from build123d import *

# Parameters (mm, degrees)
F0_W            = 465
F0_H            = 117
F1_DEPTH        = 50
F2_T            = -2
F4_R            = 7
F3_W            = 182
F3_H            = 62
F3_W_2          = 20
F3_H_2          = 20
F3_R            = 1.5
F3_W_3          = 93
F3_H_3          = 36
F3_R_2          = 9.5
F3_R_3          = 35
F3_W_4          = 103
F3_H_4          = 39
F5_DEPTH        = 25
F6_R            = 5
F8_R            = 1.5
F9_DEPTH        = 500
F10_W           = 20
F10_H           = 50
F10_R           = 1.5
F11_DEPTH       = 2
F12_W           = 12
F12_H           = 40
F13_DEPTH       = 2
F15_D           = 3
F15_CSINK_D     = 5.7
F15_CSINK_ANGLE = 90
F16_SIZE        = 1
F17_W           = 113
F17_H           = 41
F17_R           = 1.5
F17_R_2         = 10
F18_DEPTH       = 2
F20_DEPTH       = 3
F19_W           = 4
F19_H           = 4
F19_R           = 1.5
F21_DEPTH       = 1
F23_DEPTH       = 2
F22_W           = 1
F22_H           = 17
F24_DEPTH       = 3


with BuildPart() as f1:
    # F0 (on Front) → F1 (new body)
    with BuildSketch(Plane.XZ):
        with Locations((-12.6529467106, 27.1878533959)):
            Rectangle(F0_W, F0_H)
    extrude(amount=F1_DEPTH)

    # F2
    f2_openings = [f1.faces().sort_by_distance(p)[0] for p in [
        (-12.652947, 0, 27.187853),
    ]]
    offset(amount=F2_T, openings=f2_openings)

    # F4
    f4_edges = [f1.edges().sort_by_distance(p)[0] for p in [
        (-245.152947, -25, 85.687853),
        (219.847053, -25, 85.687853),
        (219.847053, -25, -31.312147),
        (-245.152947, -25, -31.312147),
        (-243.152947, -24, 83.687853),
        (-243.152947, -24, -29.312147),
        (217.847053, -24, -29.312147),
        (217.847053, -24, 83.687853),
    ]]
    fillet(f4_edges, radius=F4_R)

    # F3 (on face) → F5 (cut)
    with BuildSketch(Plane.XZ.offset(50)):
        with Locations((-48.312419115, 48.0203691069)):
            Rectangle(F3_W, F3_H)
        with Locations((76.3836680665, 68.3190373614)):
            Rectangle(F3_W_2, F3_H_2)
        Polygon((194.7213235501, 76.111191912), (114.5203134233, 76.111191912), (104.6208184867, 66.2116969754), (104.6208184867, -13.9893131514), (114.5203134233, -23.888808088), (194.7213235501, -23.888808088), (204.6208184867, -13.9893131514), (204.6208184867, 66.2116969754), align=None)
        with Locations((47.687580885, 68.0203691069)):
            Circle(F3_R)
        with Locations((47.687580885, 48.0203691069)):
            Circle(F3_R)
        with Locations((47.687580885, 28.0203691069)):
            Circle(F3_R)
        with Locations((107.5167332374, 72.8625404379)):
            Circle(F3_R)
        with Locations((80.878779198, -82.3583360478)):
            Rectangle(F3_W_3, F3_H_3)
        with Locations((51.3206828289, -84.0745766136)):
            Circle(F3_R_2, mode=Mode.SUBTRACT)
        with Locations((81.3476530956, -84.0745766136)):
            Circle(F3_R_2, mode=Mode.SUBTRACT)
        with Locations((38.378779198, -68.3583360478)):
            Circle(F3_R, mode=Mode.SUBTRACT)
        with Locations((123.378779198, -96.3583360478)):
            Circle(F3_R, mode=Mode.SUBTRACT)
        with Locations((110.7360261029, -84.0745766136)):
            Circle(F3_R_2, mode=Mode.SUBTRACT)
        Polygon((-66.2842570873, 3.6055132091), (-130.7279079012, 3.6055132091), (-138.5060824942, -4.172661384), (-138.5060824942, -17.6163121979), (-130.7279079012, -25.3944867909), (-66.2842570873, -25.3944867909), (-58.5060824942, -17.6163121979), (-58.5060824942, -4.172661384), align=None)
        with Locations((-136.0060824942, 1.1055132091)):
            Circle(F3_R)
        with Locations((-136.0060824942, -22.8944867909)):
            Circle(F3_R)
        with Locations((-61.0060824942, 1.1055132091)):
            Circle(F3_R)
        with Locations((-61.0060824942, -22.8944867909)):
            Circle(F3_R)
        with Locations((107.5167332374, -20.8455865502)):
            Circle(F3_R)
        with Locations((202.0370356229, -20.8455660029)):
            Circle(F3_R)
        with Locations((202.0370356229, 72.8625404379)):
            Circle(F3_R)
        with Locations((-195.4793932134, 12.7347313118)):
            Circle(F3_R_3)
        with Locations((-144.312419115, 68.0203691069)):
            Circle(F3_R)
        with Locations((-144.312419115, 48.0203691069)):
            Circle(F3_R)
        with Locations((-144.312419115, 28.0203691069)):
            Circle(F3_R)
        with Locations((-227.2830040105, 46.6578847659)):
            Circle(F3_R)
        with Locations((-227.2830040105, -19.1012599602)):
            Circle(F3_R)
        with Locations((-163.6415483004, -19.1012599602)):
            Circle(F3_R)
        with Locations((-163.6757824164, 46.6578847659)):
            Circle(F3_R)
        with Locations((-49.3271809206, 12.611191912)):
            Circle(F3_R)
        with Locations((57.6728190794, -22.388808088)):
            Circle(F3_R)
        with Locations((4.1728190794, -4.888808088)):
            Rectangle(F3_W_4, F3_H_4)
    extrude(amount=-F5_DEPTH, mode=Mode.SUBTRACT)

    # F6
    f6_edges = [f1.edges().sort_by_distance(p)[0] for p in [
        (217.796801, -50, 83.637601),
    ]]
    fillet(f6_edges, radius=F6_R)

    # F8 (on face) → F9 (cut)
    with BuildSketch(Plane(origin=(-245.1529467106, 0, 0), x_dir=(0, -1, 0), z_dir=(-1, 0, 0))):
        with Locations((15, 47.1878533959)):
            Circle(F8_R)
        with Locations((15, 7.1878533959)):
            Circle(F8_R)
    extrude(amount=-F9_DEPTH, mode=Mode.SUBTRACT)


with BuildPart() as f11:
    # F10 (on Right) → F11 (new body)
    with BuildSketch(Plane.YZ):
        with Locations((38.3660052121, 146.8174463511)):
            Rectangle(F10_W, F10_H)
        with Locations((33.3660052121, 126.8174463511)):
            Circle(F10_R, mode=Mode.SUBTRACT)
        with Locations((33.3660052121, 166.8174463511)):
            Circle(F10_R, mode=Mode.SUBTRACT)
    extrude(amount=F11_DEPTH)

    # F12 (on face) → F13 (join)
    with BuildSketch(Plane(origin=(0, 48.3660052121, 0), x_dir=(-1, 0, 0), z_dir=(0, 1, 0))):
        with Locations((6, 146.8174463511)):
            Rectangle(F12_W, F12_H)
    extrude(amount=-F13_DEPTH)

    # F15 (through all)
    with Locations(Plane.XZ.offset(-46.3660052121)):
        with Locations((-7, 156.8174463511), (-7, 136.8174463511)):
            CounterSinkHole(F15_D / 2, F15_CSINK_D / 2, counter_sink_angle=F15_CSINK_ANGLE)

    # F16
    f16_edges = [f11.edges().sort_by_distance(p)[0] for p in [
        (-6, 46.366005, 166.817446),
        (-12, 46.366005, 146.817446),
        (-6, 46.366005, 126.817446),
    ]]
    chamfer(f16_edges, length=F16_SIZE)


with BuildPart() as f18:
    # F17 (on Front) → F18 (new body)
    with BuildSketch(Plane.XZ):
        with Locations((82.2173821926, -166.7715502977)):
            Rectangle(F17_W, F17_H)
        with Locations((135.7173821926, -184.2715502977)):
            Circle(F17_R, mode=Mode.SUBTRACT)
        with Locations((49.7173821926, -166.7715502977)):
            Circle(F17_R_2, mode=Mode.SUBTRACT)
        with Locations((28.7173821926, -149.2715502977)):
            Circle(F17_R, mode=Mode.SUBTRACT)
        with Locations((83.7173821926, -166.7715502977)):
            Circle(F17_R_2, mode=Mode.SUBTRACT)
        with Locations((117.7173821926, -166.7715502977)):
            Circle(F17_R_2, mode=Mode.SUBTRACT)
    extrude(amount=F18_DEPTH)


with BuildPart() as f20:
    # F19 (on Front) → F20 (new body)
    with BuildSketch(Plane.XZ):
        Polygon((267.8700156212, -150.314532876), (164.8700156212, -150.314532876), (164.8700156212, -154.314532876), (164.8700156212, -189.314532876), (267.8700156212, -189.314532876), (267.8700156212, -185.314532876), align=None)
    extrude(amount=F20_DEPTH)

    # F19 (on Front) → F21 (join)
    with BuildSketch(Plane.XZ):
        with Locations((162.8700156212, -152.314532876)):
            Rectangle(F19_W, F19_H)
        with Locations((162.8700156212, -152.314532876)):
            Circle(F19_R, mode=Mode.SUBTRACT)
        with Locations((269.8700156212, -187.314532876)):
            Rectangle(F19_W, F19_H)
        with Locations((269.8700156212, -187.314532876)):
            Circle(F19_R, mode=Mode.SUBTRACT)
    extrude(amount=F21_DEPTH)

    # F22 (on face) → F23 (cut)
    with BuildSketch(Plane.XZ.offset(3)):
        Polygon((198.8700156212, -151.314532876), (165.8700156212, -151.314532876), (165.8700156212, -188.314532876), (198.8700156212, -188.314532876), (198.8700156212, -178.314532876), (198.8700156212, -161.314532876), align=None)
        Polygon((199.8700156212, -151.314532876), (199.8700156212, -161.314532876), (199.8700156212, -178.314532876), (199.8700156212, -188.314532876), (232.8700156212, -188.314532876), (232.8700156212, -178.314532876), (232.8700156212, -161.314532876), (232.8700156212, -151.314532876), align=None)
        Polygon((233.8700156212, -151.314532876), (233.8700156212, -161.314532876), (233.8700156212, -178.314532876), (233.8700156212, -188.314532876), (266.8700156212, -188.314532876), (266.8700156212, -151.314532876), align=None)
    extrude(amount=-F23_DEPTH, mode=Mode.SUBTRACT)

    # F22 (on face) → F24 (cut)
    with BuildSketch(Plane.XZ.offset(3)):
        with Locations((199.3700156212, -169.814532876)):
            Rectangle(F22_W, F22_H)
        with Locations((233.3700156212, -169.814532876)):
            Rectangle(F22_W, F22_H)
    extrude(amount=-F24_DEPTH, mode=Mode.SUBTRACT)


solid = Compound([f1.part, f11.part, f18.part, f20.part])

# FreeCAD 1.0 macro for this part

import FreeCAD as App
import Part
import Sketcher
Q = App.Units.Quantity


def edges_at(feature, points):
    """Names of the edges that pass closest to the given points."""
    edges = feature.Shape.Edges
    near = lambda p: min(range(len(edges)), key=lambda i: edges[i].distToShape(Part.Vertex(*p))[0])
    return sorted({f"Edge{near(p) + 1}" for p in points})


def faces_at(feature, points):
    """Names of the faces that lie closest to the given points."""
    faces = feature.Shape.Faces
    near = lambda p: min(range(len(faces)), key=lambda i: faces[i].distToShape(Part.Vertex(*p))[0])
    return sorted({f"Face{near(p) + 1}" for p in points})


def add_polygon(sketch, points):
    """Adds a closed chain of lines whose ends are joined by coincident constraints."""
    first, n = sketch.GeometryCount, len(points)
    for a, b in zip(points, points[1:] + points[:1]):
        sketch.addGeometry(Part.LineSegment(App.Vector(*a, 0), App.Vector(*b, 0)), False)
    for i in range(n):
        sketch.addConstraint(Sketcher.Constraint("Coincident", first + i, 2, first + (i + 1) % n, 1))

doc = App.newDocument("Part")
params = doc.addObject("Spreadsheet::Sheet", "Params")
for row, (alias, value) in enumerate([
    ("sketch1_width", "465 mm"),
    ("sketch1_height", "117 mm"),
    ("pad1_length", "50 mm"),
    ("thickness_wall", "2 mm"),
    ("fillet_radius", "7 mm"),
    ("sketch2_diameter", "3 mm"),
    ("sketch2_diameter2", "19 mm"),
    ("sketch2_diameter3", "70 mm"),
    ("sketch2_width", "182 mm"),
    ("sketch2_width2", "20 mm"),
    ("pocket1_length", "25 mm"),
    ("fillet2_radius", "5 mm"),
    ("sketch3_diameter", "3 mm"),
    ("pocket2_length", "500 mm"),
    ("sketch4_diameter", "3 mm"),
    ("sketch4_width", "20 mm"),
    ("sketch4_height", "50 mm"),
    ("pad2_length", "2 mm"),
    ("sketch5_width", "12 mm"),
    ("sketch5_height", "40 mm"),
    ("pad3_length", "2 mm"),
    ("sketch6_diameter", "3 mm"),
    ("hole_diameter", "3 mm"),
    ("hole_csink_diameter", "5.7 mm"),
    ("chamfer_size", "1 mm"),
    ("sketch7_diameter", "3 mm"),
    ("sketch7_diameter2", "20 mm"),
    ("sketch7_width", "113 mm"),
    ("sketch7_height", "41 mm"),
    ("pad4_length", "2 mm"),
    ("sketch8_width", "103 mm"),
    ("sketch8_height", "39 mm"),
    ("pad5_length", "3 mm"),
    ("sketch9_diameter", "3 mm"),
    ("sketch9_width", "4 mm"),
    ("pad6_length", "1 mm"),
    ("sketch10_width", "33 mm"),
    ("sketch10_height", "37 mm"),
    ("pocket3_length", "2 mm"),
    ("sketch11_width", "1 mm"),
    ("sketch11_height", "17 mm"),
    ("pocket4_length", "3 mm"),
], start=1):
    params.set(f"A{row}", alias)
    params.set(f"B{row}", "=" + value)
    params.setAlias(f"B{row}", alias)

body = doc.addObject("PartDesign::Body", "Body")

sketch1 = body.newObject("Sketcher::SketchObject", "Sketch")
sketch1.AttachmentSupport = (doc.getObject("XZ_Plane"), [""])
sketch1.MapMode = "FlatFace"
add_polygon(sketch1, [(-245, 86), (-245, -31), (220, -31), (220, 86)])
sketch1.addConstraint([
    Sketcher.Constraint("Vertical", 0),
    Sketcher.Constraint("Horizontal", 1),
    Sketcher.Constraint("Vertical", 2),
    Sketcher.Constraint("Horizontal", 3),
    Sketcher.Constraint("DistanceX", 1, 1, 1, 2, Q("465 mm")),
    Sketcher.Constraint("DistanceY", 0, 2, 0, 1, Q("117 mm")),
    Sketcher.Constraint("DistanceX", 0, 2, -1, 1, Q("245.152947 mm")),
    Sketcher.Constraint("DistanceY", 0, 2, -1, 1, Q("31.312147 mm")),
])
sketch1.setExpression("Constraints[8]", "Params.sketch1_width")
sketch1.setExpression("Constraints[9]", "Params.sketch1_height")
pad1 = body.newObject("PartDesign::Pad", "Pad")
pad1.Profile = sketch1
pad1.setExpression("Length", "Params.pad1_length")
doc.recompute()

thickness = body.newObject("PartDesign::Thickness", "Thickness")
thickness.Base = (pad1, faces_at(pad1, [(-12.653, 0, 27.188)]))
thickness.setExpression("Value", "Params.thickness_wall")
thickness.Reversed = True
thickness.Join = "Arc"
doc.recompute()

fillet = body.newObject("PartDesign::Fillet", "Fillet")
fillet.Base = (thickness, edges_at(thickness, [
    (-245.153, -25, 85.688),
    (219.847, -25, 85.688),
    (219.847, -25, -31.312),
    (-245.153, -25, -31.312),
    (-243.153, -24, 83.688),
    (-243.153, -24, -29.312),
    (217.847, -24, -29.312),
    (217.847, -24, 83.688),
]))
fillet.setExpression("Radius", "Params.fillet_radius")

sketch2 = body.newObject("Sketcher::SketchObject", "Sketch001")
sketch2.AttachmentSupport = (doc.getObject("XZ_Plane"), [""])
sketch2.MapMode = "FlatFace"
sketch2.AttachmentOffset = App.Placement(App.Vector(0, 0, 50), App.Rotation())
add_polygon(sketch2, [(-139.3, 79), (-139.3, 17), (42.7, 17), (42.7, 79)])
add_polygon(sketch2, [(66.4, 78.3), (66.4, 58.3), (86.4, 58.3), (86.4, 78.3)])
add_polygon(sketch2, [(194.7, 76.1), (114.5, 76.1), (104.6, 66.2), (104.6, -14), (114.5, -23.9), (194.7, -23.9), (204.6, -14), (204.6, 66.2)])
sketch2.addGeometry(Part.Circle(App.Vector(47.7, 68, 0), App.Vector(0, 0, 1), 1.5), False)
sketch2.addGeometry(Part.Circle(App.Vector(47.7, 48, 0), App.Vector(0, 0, 1), 1.5), False)
sketch2.addGeometry(Part.Circle(App.Vector(47.7, 28, 0), App.Vector(0, 0, 1), 1.5), False)
sketch2.addGeometry(Part.Circle(App.Vector(107.5, 72.9, 0), App.Vector(0, 0, 1), 1.5), False)
add_polygon(sketch2, [(34.4, -64.4), (34.4, -100.4), (127.4, -100.4), (127.4, -64.4)])
sketch2.addGeometry(Part.Circle(App.Vector(51.3, -84.1, 0), App.Vector(0, 0, 1), 9.5), False)
sketch2.addGeometry(Part.Circle(App.Vector(123.4, -96.4, 0), App.Vector(0, 0, 1), 1.5), False)
sketch2.addGeometry(Part.Circle(App.Vector(81.3, -84.1, 0), App.Vector(0, 0, 1), 9.5), False)
sketch2.addGeometry(Part.Circle(App.Vector(110.7, -84.1, 0), App.Vector(0, 0, 1), 9.5), False)
sketch2.addGeometry(Part.Circle(App.Vector(38.4, -68.4, 0), App.Vector(0, 0, 1), 1.5), False)
add_polygon(sketch2, [(-66.3, 3.6), (-130.7, 3.6), (-138.5, -4.2), (-138.5, -17.6), (-130.7, -25.4), (-66.3, -25.4), (-58.5, -17.6), (-58.5, -4.2)])
sketch2.addGeometry(Part.Circle(App.Vector(-136, 1.1, 0), App.Vector(0, 0, 1), 1.5), False)
sketch2.addGeometry(Part.Circle(App.Vector(-136, -22.9, 0), App.Vector(0, 0, 1), 1.5), False)
sketch2.addGeometry(Part.Circle(App.Vector(-61, 1.1, 0), App.Vector(0, 0, 1), 1.5), False)
sketch2.addGeometry(Part.Circle(App.Vector(-61, -22.9, 0), App.Vector(0, 0, 1), 1.5), False)
sketch2.addGeometry(Part.Circle(App.Vector(107.5, -20.8, 0), App.Vector(0, 0, 1), 1.5), False)
sketch2.addGeometry(Part.Circle(App.Vector(202, -20.8, 0), App.Vector(0, 0, 1), 1.5), False)
sketch2.addGeometry(Part.Circle(App.Vector(202, 72.9, 0), App.Vector(0, 0, 1), 1.5), False)
sketch2.addGeometry(Part.Circle(App.Vector(-195.5, 12.7, 0), App.Vector(0, 0, 1), 35), False)
sketch2.addGeometry(Part.Circle(App.Vector(-144.3, 68, 0), App.Vector(0, 0, 1), 1.5), False)
sketch2.addGeometry(Part.Circle(App.Vector(-144.3, 48, 0), App.Vector(0, 0, 1), 1.5), False)
sketch2.addGeometry(Part.Circle(App.Vector(-144.3, 28, 0), App.Vector(0, 0, 1), 1.5), False)
sketch2.addGeometry(Part.Circle(App.Vector(-227.3, 46.7, 0), App.Vector(0, 0, 1), 1.5), False)
sketch2.addGeometry(Part.Circle(App.Vector(-227.3, -19.1, 0), App.Vector(0, 0, 1), 1.5), False)
sketch2.addGeometry(Part.Circle(App.Vector(-163.6, -19.1, 0), App.Vector(0, 0, 1), 1.5), False)
sketch2.addGeometry(Part.Circle(App.Vector(-163.7, 46.7, 0), App.Vector(0, 0, 1), 1.5), False)
sketch2.addGeometry(Part.Circle(App.Vector(-49.3, 12.6, 0), App.Vector(0, 0, 1), 1.5), False)
sketch2.addGeometry(Part.Circle(App.Vector(57.7, -22.4, 0), App.Vector(0, 0, 1), 1.5), False)
add_polygon(sketch2, [(-47.3, 14.6), (-47.3, -24.4), (55.7, -24.4), (55.7, 14.6)])
sketch2.addConstraint([
    Sketcher.Constraint("Vertical", 0),
    Sketcher.Constraint("Horizontal", 1),
    Sketcher.Constraint("Vertical", 2),
    Sketcher.Constraint("Horizontal", 3),
    Sketcher.Constraint("Vertical", 4),
    Sketcher.Constraint("Horizontal", 5),
    Sketcher.Constraint("Vertical", 6),
    Sketcher.Constraint("Horizontal", 7),
    Sketcher.Constraint("Horizontal", 8),
    Sketcher.Constraint("Vertical", 10),
    Sketcher.Constraint("Horizontal", 12),
    Sketcher.Constraint("Vertical", 14),
    Sketcher.Constraint("Vertical", 20),
    Sketcher.Constraint("Horizontal", 21),
    Sketcher.Constraint("Vertical", 22),
    Sketcher.Constraint("Horizontal", 23),
    Sketcher.Constraint("Horizontal", 29),
    Sketcher.Constraint("Vertical", 31),
    Sketcher.Constraint("Horizontal", 33),
    Sketcher.Constraint("Vertical", 35),
    Sketcher.Constraint("Vertical", 54),
    Sketcher.Constraint("Horizontal", 55),
    Sketcher.Constraint("Vertical", 56),
    Sketcher.Constraint("Horizontal", 57),
    Sketcher.Constraint("Equal", 16, 17),
    Sketcher.Constraint("Equal", 17, 18),
    Sketcher.Constraint("Equal", 18, 19),
    Sketcher.Constraint("Equal", 19, 25),
    Sketcher.Constraint("Equal", 24, 26),
    Sketcher.Constraint("Equal", 26, 27),
    Sketcher.Constraint("Equal", 25, 28),
    Sketcher.Constraint("Equal", 28, 37),
    Sketcher.Constraint("Equal", 37, 38),
    Sketcher.Constraint("Equal", 38, 39),
    Sketcher.Constraint("Equal", 39, 40),
    Sketcher.Constraint("Equal", 40, 41),
    Sketcher.Constraint("Equal", 41, 42),
    Sketcher.Constraint("Equal", 42, 43),
    Sketcher.Constraint("Equal", 43, 45),
    Sketcher.Constraint("Equal", 45, 46),
    Sketcher.Constraint("Equal", 46, 47),
    Sketcher.Constraint("Equal", 47, 48),
    Sketcher.Constraint("Equal", 48, 49),
    Sketcher.Constraint("Equal", 49, 50),
    Sketcher.Constraint("Equal", 50, 51),
    Sketcher.Constraint("Equal", 51, 52),
    Sketcher.Constraint("Equal", 52, 53),
    Sketcher.Constraint("Perpendicular", 9, 11),
    Sketcher.Constraint("Perpendicular", 11, 13),
    Sketcher.Constraint("Perpendicular", 13, 15),
    Sketcher.Constraint("Perpendicular", 15, 30),
    Sketcher.Constraint("Perpendicular", 30, 32),
    Sketcher.Constraint("Perpendicular", 32, 34),
    Sketcher.Constraint("Perpendicular", 34, 36),
    Sketcher.Constraint("Horizontal", 24, 3, 26, 3),
    Sketcher.Constraint("Horizontal", 26, 3, 27, 3),
    Sketcher.Constraint("Horizontal", 37, 3, 39, 3),
    Sketcher.Constraint("Horizontal", 38, 3, 40, 3),
    Sketcher.Constraint("Horizontal", 19, 3, 43, 3),
    Sketcher.Constraint("Horizontal", 16, 3, 45, 3),
    Sketcher.Constraint("Horizontal", 17, 3, 46, 3),
    Sketcher.Constraint("Horizontal", 18, 3, 47, 3),
    Sketcher.Constraint("Horizontal", 49, 3, 50, 3),
    Sketcher.Constraint("Horizontal", 48, 3, 51, 3),
    Sketcher.Constraint("Horizontal", 10, 2, 13, 2),
    Sketcher.Constraint("Horizontal", 9, 2, 14, 2),
    Sketcher.Constraint("Horizontal", 31, 2, 34, 2),
    Sketcher.Constraint("Horizontal", 30, 2, 35, 2),
    Sketcher.Constraint("Vertical", 16, 3, 17, 3),
    Sketcher.Constraint("Vertical", 17, 3, 18, 3),
    Sketcher.Constraint("Vertical", 37, 3, 38, 3),
    Sketcher.Constraint("Vertical", 39, 3, 40, 3),
    Sketcher.Constraint("Vertical", 19, 3, 41, 3),
    Sketcher.Constraint("Vertical", 42, 3, 43, 3),
    Sketcher.Constraint("Vertical", 45, 3, 46, 3),
    Sketcher.Constraint("Vertical", 46, 3, 47, 3),
    Sketcher.Constraint("Vertical", 48, 3, 49, 3),
    Sketcher.Constraint("Vertical", 8, 2, 11, 2),
    Sketcher.Constraint("Vertical", 12, 2, 15, 2),
    Sketcher.Constraint("Vertical", 29, 2, 32, 2),
    Sketcher.Constraint("Equal", 7, 4),
    Sketcher.Constraint("Equal", 12, 10),
    Sketcher.Constraint("Diameter", 16, Q("3 mm")),
    Sketcher.Constraint("Diameter", 24, Q("19 mm")),
    Sketcher.Constraint("Diameter", 44, Q("70 mm")),
    Sketcher.Constraint("DistanceX", 1, 1, 1, 2, Q("182 mm")),
    Sketcher.Constraint("DistanceX", 5, 1, 5, 2, Q("20 mm")),
    Sketcher.Constraint("DistanceX", 21, 1, 21, 2, Q("93 mm")),
    Sketcher.Constraint("DistanceX", 55, 1, 55, 2, Q("103 mm")),
    Sketcher.Constraint("DistanceY", 0, 2, 0, 1, Q("62 mm")),
    Sketcher.Constraint("DistanceY", 20, 2, 20, 1, Q("36 mm")),
    Sketcher.Constraint("DistanceY", 54, 2, 54, 1, Q("39 mm")),
    Sketcher.Constraint("Distance", 9, Q("14 mm")),
    Sketcher.Constraint("Distance", 30, Q("11 mm")),
    Sketcher.Constraint("DistanceY", 17, 3, 16, 3, Q("20 mm")),
    Sketcher.Constraint("DistanceY", 18, 3, 17, 3, Q("20 mm")),
    Sketcher.Constraint("DistanceX", 28, 3, 25, 3, Q("85 mm")),
    Sketcher.Constraint("DistanceY", 25, 3, 28, 3, Q("28 mm")),
    Sketcher.Constraint("DistanceY", 38, 3, 37, 3, Q("24 mm")),
    Sketcher.Constraint("DistanceX", 37, 3, 39, 3, Q("75 mm")),
    Sketcher.Constraint("DistanceX", 47, 3, 0, 2, Q("5 mm")),
    Sketcher.Constraint("DistanceY", 0, 2, 47, 3, Q("11 mm")),
    Sketcher.Constraint("DistanceX", 1, 2, 18, 3, Q("5 mm")),
    Sketcher.Constraint("DistanceX", 20, 2, 28, 3, Q("4 mm")),
    Sketcher.Constraint("DistanceY", 20, 2, 28, 3, Q("32 mm")),
    Sketcher.Constraint("DistanceY", 32, 2, 29, 2, Q("29 mm")),
    Sketcher.Constraint("DistanceX", 55, 2, 53, 3, Q("2 mm")),
    Sketcher.Constraint("DistanceY", 55, 2, 53, 3, Q("2 mm")),
    Sketcher.Constraint("DistanceX", 52, 3, 57, 2, Q("2 mm")),
    Sketcher.Constraint("DistanceY", 52, 3, 57, 2, Q("2 mm")),
    Sketcher.Constraint("DistanceY", 11, 2, 53, 3, Q("1.5 mm")),
    Sketcher.Constraint("DistanceY", 37, 3, 29, 2, Q("2.5 mm")),
    Sketcher.Constraint("DistanceX", 30, 2, 37, 3, Q("2.5 mm")),
    Sketcher.Constraint("DistanceX", 40, 3, 34, 2, Q("2.5 mm")),
    Sketcher.Constraint("DistanceX", 53, 3, 10, 2, Q("46.947999 mm")),
    Sketcher.Constraint("DistanceX", 8, 2, 8, 1, Q("80.20101 mm")),
    Sketcher.Constraint("DistanceX", 18, 3, 24, 3, Q("3.633102 mm")),
    Sketcher.Constraint("DistanceX", 18, 3, 25, 3, Q("75.691198 mm")),
    Sketcher.Constraint("DistanceX", 51, 3, 37, 3, Q("27.6697 mm")),
    Sketcher.Constraint("DistanceX", 39, 3, 52, 3, Q("11.678902 mm")),
    Sketcher.Constraint("DistanceY", 50, 3, 30, 2, Q("14.928599 mm")),
    Sketcher.Constraint("DistanceX", -1, 1, 16, 3, Q("47.687581 mm")),
    Sketcher.Constraint("DistanceY", -1, 1, 16, 3, Q("68.020369 mm")),
    Sketcher.Constraint("DistanceY", -1, 1, 19, 3, Q("72.86254 mm")),
    Sketcher.Constraint("DistanceY", -1, 1, 44, 3, Q("12.734731 mm")),
    Sketcher.Constraint("DistanceY", 49, 3, -1, 1, Q("19.10126 mm")),
    Sketcher.Constraint("DistanceX", 50, 3, -1, 1, Q("163.641548 mm")),
    Sketcher.Constraint("DistanceX", 52, 3, -1, 1, Q("49.327181 mm")),
    Sketcher.Constraint("DistanceY", -1, 1, 52, 3, Q("12.611192 mm")),
    Sketcher.Constraint("DistanceX", -1, 1, 4, 2, Q("66.383668 mm")),
    Sketcher.Constraint("DistanceX", 24, 3, 19, 3, Q("56.19605 mm")),
    Sketcher.Constraint("DistanceY", 25, 3, 24, 3, Q("12.283759 mm")),
    Sketcher.Constraint("DistanceX", 24, 3, 26, 3, Q("30.02697 mm")),
    Sketcher.Constraint("DistanceY", 28, 3, 37, 3, Q("69.463849 mm")),
    Sketcher.Constraint("DistanceY", 27, 3, 41, 3, Q("63.22899 mm")),
    Sketcher.Constraint("DistanceY", 25, 3, 42, 3, Q("75.51277 mm")),
    Sketcher.Constraint("DistanceX", 27, 3, 42, 3, Q("91.30101 mm")),
    Sketcher.Constraint("DistanceX", 44, 3, 37, 3, Q("59.473311 mm")),
    Sketcher.Constraint("DistanceX", 48, 3, 44, 3, Q("31.803611 mm")),
    Sketcher.Constraint("DistanceY", 37, 3, 48, 3, Q("45.552372 mm")),
    Sketcher.Constraint("DistanceY", 4, 2, 16, 3, Q("9.701332 mm")),
    Sketcher.Constraint("DistanceX", -1, 1, 27, 3, Q("110.736026 mm")),
])
sketch2.setExpression("Constraints[114]", "Params.sketch2_diameter")
sketch2.setExpression("Constraints[115]", "Params.sketch2_diameter2")
sketch2.setExpression("Constraints[116]", "Params.sketch2_diameter3")
sketch2.setExpression("Constraints[117]", "Params.sketch2_width")
sketch2.setExpression("Constraints[118]", "Params.sketch2_width2")
pocket1 = body.newObject("PartDesign::Pocket", "Pocket")
pocket1.Profile = sketch2
pocket1.setExpression("Length", "Params.pocket1_length")
doc.recompute()

fillet2 = body.newObject("PartDesign::Fillet", "Fillet001")
fillet2.Base = (pocket1, edges_at(pocket1, [(217.797, -50, 83.638)]))
fillet2.setExpression("Radius", "Params.fillet2_radius")

sketch3 = body.newObject("Sketcher::SketchObject", "Sketch002")
sketch3.AttachmentSupport = (doc.getObject("YZ_Plane"), [""])
sketch3.MapMode = "FlatFace"
sketch3.AttachmentOffset = App.Placement(App.Vector(0, 0, -245.152947), App.Rotation())
sketch3.addGeometry([
    Part.Circle(App.Vector(-15, 47.2, 0), App.Vector(0, 0, 1), 1.5),
    Part.Circle(App.Vector(-15, 7.2, 0), App.Vector(0, 0, 1), 1.5),
], False)
sketch3.addConstraint([
    Sketcher.Constraint("Equal", 0, 1),
    Sketcher.Constraint("Vertical", 0, 3, 1, 3),
    Sketcher.Constraint("Diameter", 0, Q("3 mm")),
    Sketcher.Constraint("DistanceX", 0, 3, -1, 1, Q("15 mm")),
    Sketcher.Constraint("DistanceY", 1, 3, 0, 3, Q("40 mm")),
    Sketcher.Constraint("DistanceY", -1, 1, 0, 3, Q("47.187853 mm")),
])
sketch3.setExpression("Constraints[2]", "Params.sketch3_diameter")
pocket2 = body.newObject("PartDesign::Pocket", "Pocket001")
pocket2.Profile = sketch3
pocket2.setExpression("Length", "Params.pocket2_length")
pocket2.Reversed = True
body2 = doc.addObject("PartDesign::Body", "Body001")

sketch4 = body2.newObject("Sketcher::SketchObject", "Sketch003")
sketch4.AttachmentSupport = (doc.getObject("YZ_Plane001"), [""])
sketch4.MapMode = "FlatFace"
add_polygon(sketch4, [(28.4, 171.8), (28.4, 121.8), (48.4, 121.8), (48.4, 171.8)])
sketch4.addGeometry(Part.Circle(App.Vector(33.4, 126.8, 0), App.Vector(0, 0, 1), 1.5), False)
sketch4.addGeometry(Part.Circle(App.Vector(33.4, 166.8, 0), App.Vector(0, 0, 1), 1.5), False)
sketch4.addConstraint([
    Sketcher.Constraint("Vertical", 0),
    Sketcher.Constraint("Horizontal", 1),
    Sketcher.Constraint("Vertical", 2),
    Sketcher.Constraint("Horizontal", 3),
    Sketcher.Constraint("Equal", 4, 5),
    Sketcher.Constraint("Vertical", 4, 3, 5, 3),
    Sketcher.Constraint("Diameter", 4, Q("3 mm")),
    Sketcher.Constraint("DistanceX", 1, 1, 1, 2, Q("20 mm")),
    Sketcher.Constraint("DistanceY", 0, 2, 0, 1, Q("50 mm")),
    Sketcher.Constraint("DistanceY", 4, 3, 5, 3, Q("40 mm")),
    Sketcher.Constraint("DistanceX", 0, 2, 4, 3, Q("5 mm")),
    Sketcher.Constraint("DistanceY", 0, 2, 4, 3, Q("5 mm")),
    Sketcher.Constraint("DistanceX", -1, 1, 4, 3, Q("33.366005 mm")),
    Sketcher.Constraint("DistanceY", -1, 1, 4, 3, Q("126.817446 mm")),
])
sketch4.setExpression("Constraints[10]", "Params.sketch4_diameter")
sketch4.setExpression("Constraints[11]", "Params.sketch4_width")
sketch4.setExpression("Constraints[12]", "Params.sketch4_height")
pad2 = body2.newObject("PartDesign::Pad", "Pad001")
pad2.Profile = sketch4
pad2.setExpression("Length", "Params.pad2_length")

sketch5 = body2.newObject("Sketcher::SketchObject", "Sketch004")
sketch5.AttachmentSupport = (doc.getObject("XZ_Plane001"), [""])
sketch5.MapMode = "FlatFace"
sketch5.AttachmentOffset = App.Placement(App.Vector(0, 0, -48.366005), App.Rotation())
add_polygon(sketch5, [(0, 167), (0, 127), (-12, 127), (-12, 167)])
sketch5.addConstraint([
    Sketcher.Constraint("Vertical", 0),
    Sketcher.Constraint("Horizontal", 1),
    Sketcher.Constraint("Vertical", 2),
    Sketcher.Constraint("Horizontal", 3),
    Sketcher.Constraint("PointOnObject", 0, 2, -2),
    Sketcher.Constraint("DistanceX", 1, 2, 1, 1, Q("12 mm")),
    Sketcher.Constraint("DistanceY", 0, 2, 0, 1, Q("40 mm")),
    Sketcher.Constraint("DistanceY", -1, 1, 0, 2, Q("126.817446 mm")),
])
sketch5.setExpression("Constraints[9]", "Params.sketch5_width")
sketch5.setExpression("Constraints[10]", "Params.sketch5_height")
pad3 = body2.newObject("PartDesign::Pad", "Pad002")
pad3.Profile = sketch5
pad3.setExpression("Length", "Params.pad3_length")

sketch6 = body2.newObject("Sketcher::SketchObject", "Sketch005")
sketch6.AttachmentSupport = (doc.getObject("XZ_Plane001"), [""])
sketch6.MapMode = "FlatFace"
sketch6.AttachmentOffset = App.Placement(App.Vector(0, 0, -46.366005), App.Rotation())
sketch6.addGeometry([
    Part.Circle(App.Vector(-7, 156.8, 0), App.Vector(0, 0, 1), 1.5),
    Part.Circle(App.Vector(-7, 136.8, 0), App.Vector(0, 0, 1), 1.5),
], False)
sketch6.addConstraint([
    Sketcher.Constraint("Equal", 0, 1),
    Sketcher.Constraint("Vertical", 0, 3, 1, 3),
    Sketcher.Constraint("Diameter", 0, Q("3 mm")),
    Sketcher.Constraint("DistanceX", 0, 3, -1, 1, Q("7 mm")),
    Sketcher.Constraint("DistanceY", 1, 3, 0, 3, Q("20 mm")),
    Sketcher.Constraint("DistanceY", -1, 1, 0, 3, Q("156.817446 mm")),
])
sketch6.setExpression("Constraints[2]", "Params.sketch6_diameter")
doc.recompute()
hole = body2.newObject("PartDesign::Hole", "Hole")
hole.Profile = sketch6
hole.ThreadType = "None"
hole.setExpression("Diameter", "Params.hole_diameter")
hole.DepthType = "ThroughAll"
hole.HoleCutType = "Countersink"
hole.setExpression("HoleCutDiameter", "Params.hole_csink_diameter")
hole.HoleCutCountersinkAngle = 90
doc.recompute()

chamfer = body2.newObject("PartDesign::Chamfer", "Chamfer")
chamfer.Base = (hole, edges_at(hole, [(-6, 46.366, 166.817), (-12, 46.366, 146.817), (-6, 46.366, 126.817)]))
chamfer.setExpression("Size", "Params.chamfer_size")
body3 = doc.addObject("PartDesign::Body", "Body002")

sketch7 = body3.newObject("Sketcher::SketchObject", "Sketch006")
sketch7.AttachmentSupport = (doc.getObject("XZ_Plane002"), [""])
sketch7.MapMode = "FlatFace"
add_polygon(sketch7, [(25.7, -146.3), (25.7, -187.3), (138.7, -187.3), (138.7, -146.3)])
sketch7.addGeometry(Part.Circle(App.Vector(135.7, -184.3, 0), App.Vector(0, 0, 1), 1.5), False)
sketch7.addGeometry(Part.Circle(App.Vector(49.7, -166.8, 0), App.Vector(0, 0, 1), 10), False)
sketch7.addGeometry(Part.Circle(App.Vector(28.7, -149.3, 0), App.Vector(0, 0, 1), 1.5), False)
sketch7.addGeometry(Part.Circle(App.Vector(83.7, -166.8, 0), App.Vector(0, 0, 1), 10), False)
sketch7.addGeometry(Part.Circle(App.Vector(117.7, -166.8, 0), App.Vector(0, 0, 1), 10), False)
sketch7.addConstraint([
    Sketcher.Constraint("Vertical", 0),
    Sketcher.Constraint("Horizontal", 1),
    Sketcher.Constraint("Vertical", 2),
    Sketcher.Constraint("Horizontal", 3),
    Sketcher.Constraint("Equal", 4, 6),
    Sketcher.Constraint("Equal", 5, 7),
    Sketcher.Constraint("Equal", 7, 8),
    Sketcher.Constraint("Horizontal", 5, 3, 7, 3),
    Sketcher.Constraint("Horizontal", 7, 3, 8, 3),
    Sketcher.Constraint("Diameter", 4, Q("3 mm")),
    Sketcher.Constraint("Diameter", 5, Q("20 mm")),
    Sketcher.Constraint("DistanceX", 1, 1, 1, 2, Q("113 mm")),
    Sketcher.Constraint("DistanceY", 0, 2, 0, 1, Q("41 mm")),
    Sketcher.Constraint("DistanceX", 5, 3, 4, 3, Q("86 mm")),
    Sketcher.Constraint("DistanceX", 6, 3, 5, 3, Q("21 mm")),
    Sketcher.Constraint("DistanceY", 4, 3, 6, 3, Q("35 mm")),
    Sketcher.Constraint("DistanceX", 5, 3, 7, 3, Q("34 mm")),
    Sketcher.Constraint("DistanceX", 8, 3, 4, 3, Q("18 mm")),
    Sketcher.Constraint("DistanceX", 0, 2, 5, 3, Q("24 mm")),
    Sketcher.Constraint("DistanceY", 0, 2, 6, 3, Q("38 mm")),
    Sketcher.Constraint("DistanceY", 4, 3, 5, 3, Q("17.5 mm")),
    Sketcher.Constraint("DistanceY", 4, 3, -1, 1, Q("184.27155 mm")),
    Sketcher.Constraint("DistanceX", -1, 1, 4, 3, Q("135.717382 mm")),
])
sketch7.setExpression("Constraints[13]", "Params.sketch7_diameter")
sketch7.setExpression("Constraints[14]", "Params.sketch7_diameter2")
sketch7.setExpression("Constraints[15]", "Params.sketch7_width")
sketch7.setExpression("Constraints[16]", "Params.sketch7_height")
pad4 = body3.newObject("PartDesign::Pad", "Pad003")
pad4.Profile = sketch7
pad4.setExpression("Length", "Params.pad4_length")
body4 = doc.addObject("PartDesign::Body", "Body003")

sketch8 = body4.newObject("Sketcher::SketchObject", "Sketch007")
sketch8.AttachmentSupport = (doc.getObject("XZ_Plane003"), [""])
sketch8.MapMode = "FlatFace"
add_polygon(sketch8, [(268, -150), (165, -150), (165, -189), (268, -189)])
sketch8.addConstraint([
    Sketcher.Constraint("Horizontal", 0),
    Sketcher.Constraint("Vertical", 1),
    Sketcher.Constraint("Horizontal", 2),
    Sketcher.Constraint("Vertical", 3),
    Sketcher.Constraint("DistanceX", 0, 2, 0, 1, Q("103 mm")),
    Sketcher.Constraint("DistanceY", 1, 2, 1, 1, Q("39 mm")),
    Sketcher.Constraint("DistanceX", -1, 1, 0, 2, Q("164.870016 mm")),
    Sketcher.Constraint("DistanceY", 0, 2, -1, 1, Q("150.314533 mm")),
])
sketch8.setExpression("Constraints[8]", "Params.sketch8_width")
sketch8.setExpression("Constraints[9]", "Params.sketch8_height")
pad5 = body4.newObject("PartDesign::Pad", "Pad004")
pad5.Profile = sketch8
pad5.setExpression("Length", "Params.pad5_length")

sketch9 = body4.newObject("Sketcher::SketchObject", "Sketch008")
sketch9.AttachmentSupport = (doc.getObject("XZ_Plane003"), [""])
sketch9.MapMode = "FlatFace"
add_polygon(sketch9, [(160.9, -150.3), (160.9, -154.3), (164.9, -154.3), (164.9, -150.3)])
sketch9.addGeometry(Part.Circle(App.Vector(162.9, -152.3, 0), App.Vector(0, 0, 1), 1.5), False)
add_polygon(sketch9, [(267.9, -185.3), (267.9, -189.3), (271.9, -189.3), (271.9, -185.3)])
sketch9.addGeometry(Part.Circle(App.Vector(269.9, -187.3, 0), App.Vector(0, 0, 1), 1.5), False)
sketch9.addConstraint([
    Sketcher.Constraint("Vertical", 0),
    Sketcher.Constraint("Horizontal", 1),
    Sketcher.Constraint("Vertical", 2),
    Sketcher.Constraint("Horizontal", 3),
    Sketcher.Constraint("Vertical", 5),
    Sketcher.Constraint("Horizontal", 6),
    Sketcher.Constraint("Vertical", 7),
    Sketcher.Constraint("Horizontal", 8),
    Sketcher.Constraint("Equal", 4, 9),
    Sketcher.Constraint("Equal", 3, 6),
    Sketcher.Constraint("Equal", 8, 0),
    Sketcher.Constraint("Equal", 2, 5),
    Sketcher.Constraint("Diameter", 4, Q("3 mm")),
    Sketcher.Constraint("DistanceX", 1, 1, 1, 2, Q("4 mm")),
    Sketcher.Constraint("DistanceX", 4, 3, 9, 3, Q("107 mm")),
    Sketcher.Constraint("DistanceY", 9, 3, 4, 3, Q("35 mm")),
    Sketcher.Constraint("DistanceX", 0, 2, 4, 3, Q("2 mm")),
    Sketcher.Constraint("DistanceY", 0, 2, 4, 3, Q("2 mm")),
    Sketcher.Constraint("DistanceX", 5, 2, 9, 3, Q("2 mm")),
    Sketcher.Constraint("DistanceY", 5, 2, 9, 3, Q("2 mm")),
    Sketcher.Constraint("DistanceX", -1, 1, 4, 3, Q("162.870016 mm")),
    Sketcher.Constraint("DistanceY", 4, 3, -1, 1, Q("152.314533 mm")),
])
sketch9.setExpression("Constraints[20]", "Params.sketch9_diameter")
sketch9.setExpression("Constraints[21]", "Params.sketch9_width")
pad6 = body4.newObject("PartDesign::Pad", "Pad005")
pad6.Profile = sketch9
pad6.setExpression("Length", "Params.pad6_length")

sketch10 = body4.newObject("Sketcher::SketchObject", "Sketch009")
sketch10.AttachmentSupport = (doc.getObject("XZ_Plane003"), [""])
sketch10.MapMode = "FlatFace"
sketch10.AttachmentOffset = App.Placement(App.Vector(0, 0, 3), App.Rotation())
add_polygon(sketch10, [(199, -151), (166, -151), (166, -188), (199, -188)])
add_polygon(sketch10, [(200, -151), (200, -188), (233, -188), (233, -151)])
add_polygon(sketch10, [(234, -151), (234, -188), (267, -188), (267, -151)])
sketch10.addConstraint([
    Sketcher.Constraint("Horizontal", 0),
    Sketcher.Constraint("Vertical", 1),
    Sketcher.Constraint("Horizontal", 2),
    Sketcher.Constraint("Vertical", 3),
    Sketcher.Constraint("Vertical", 4),
    Sketcher.Constraint("Horizontal", 5),
    Sketcher.Constraint("Vertical", 6),
    Sketcher.Constraint("Horizontal", 7),
    Sketcher.Constraint("Vertical", 8),
    Sketcher.Constraint("Horizontal", 9),
    Sketcher.Constraint("Vertical", 10),
    Sketcher.Constraint("Horizontal", 11),
    Sketcher.Constraint("Horizontal", 2, 2, 4, 2),
    Sketcher.Constraint("Horizontal", 3, 2, 6, 2),
    Sketcher.Constraint("Horizontal", 5, 2, 8, 2),
    Sketcher.Constraint("Horizontal", 7, 2, 10, 2),
    Sketcher.Constraint("Equal", 2, 5),
    Sketcher.Constraint("Equal", 7, 9),
    Sketcher.Constraint("DistanceX", 0, 2, 0, 1, Q("33 mm")),
    Sketcher.Constraint("DistanceY", 1, 2, 1, 1, Q("37 mm")),
    Sketcher.Constraint("DistanceX", 2, 2, 4, 2, Q("1 mm")),
    Sketcher.Constraint("DistanceX", 5, 2, 8, 2, Q("1 mm")),
    Sketcher.Constraint("DistanceX", -1, 1, 0, 2, Q("165.870016 mm")),
    Sketcher.Constraint("DistanceY", 0, 2, -1, 1, Q("151.314533 mm")),
])
sketch10.setExpression("Constraints[30]", "Params.sketch10_width")
sketch10.setExpression("Constraints[31]", "Params.sketch10_height")
pocket3 = body4.newObject("PartDesign::Pocket", "Pocket002")
pocket3.Profile = sketch10
pocket3.setExpression("Length", "Params.pocket3_length")

sketch11 = body4.newObject("Sketcher::SketchObject", "Sketch010")
sketch11.AttachmentSupport = (doc.getObject("XZ_Plane003"), [""])
sketch11.MapMode = "FlatFace"
sketch11.AttachmentOffset = App.Placement(App.Vector(0, 0, 3), App.Rotation())
add_polygon(sketch11, [(198.9, -161.3), (198.9, -178.3), (199.9, -178.3), (199.9, -161.3)])
add_polygon(sketch11, [(232.9, -161.3), (232.9, -178.3), (233.9, -178.3), (233.9, -161.3)])
sketch11.addConstraint([
    Sketcher.Constraint("Vertical", 0),
    Sketcher.Constraint("Horizontal", 1),
    Sketcher.Constraint("Vertical", 2),
    Sketcher.Constraint("Horizontal", 3),
    Sketcher.Constraint("Vertical", 4),
    Sketcher.Constraint("Horizontal", 5),
    Sketcher.Constraint("Vertical", 6),
    Sketcher.Constraint("Horizontal", 7),
    Sketcher.Constraint("Horizontal", 1, 2, 4, 2),
    Sketcher.Constraint("Horizontal", 3, 2, 6, 2),
    Sketcher.Constraint("Equal", 3, 5),
    Sketcher.Constraint("DistanceX", 1, 1, 1, 2, Q("1 mm")),
    Sketcher.Constraint("DistanceY", 0, 2, 0, 1, Q("17 mm")),
    Sketcher.Constraint("DistanceX", 1, 2, 4, 2, Q("33 mm")),
    Sketcher.Constraint("DistanceX", -1, 1, 0, 2, Q("198.870016 mm")),
    Sketcher.Constraint("DistanceY", 0, 2, -1, 1, Q("178.314533 mm")),
])
sketch11.setExpression("Constraints[19]", "Params.sketch11_width")
sketch11.setExpression("Constraints[20]", "Params.sketch11_height")
pocket4 = body4.newObject("PartDesign::Pocket", "Pocket003")
pocket4.Profile = sketch11
pocket4.setExpression("Length", "Params.pocket4_length")

doc.recompute()
